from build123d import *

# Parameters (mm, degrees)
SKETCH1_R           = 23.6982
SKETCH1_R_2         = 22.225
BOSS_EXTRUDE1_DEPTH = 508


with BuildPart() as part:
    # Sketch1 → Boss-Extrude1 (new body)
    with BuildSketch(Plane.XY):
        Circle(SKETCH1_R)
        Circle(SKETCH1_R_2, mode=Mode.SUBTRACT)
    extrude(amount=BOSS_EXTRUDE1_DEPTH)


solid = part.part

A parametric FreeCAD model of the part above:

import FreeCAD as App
import Part
import Sketcher
Q = App.Units.Quantity

doc = App.newDocument("Part")
body = doc.addObject("PartDesign::Body", "Body")

sketch1 = doc.addObject("Sketcher::SketchObject", "Sketch")
body.addObject(sketch1)
sketch1.AttachmentSupport = (doc.XY_Plane, [""])
sketch1.MapMode = "FlatFace"
sketch1.addGeometry(Part.Circle(App.Vector(0, 0, 0), App.Vector(0, 0, 1), 24), False)
sketch1.addGeometry(Part.Circle(App.Vector(0, 0, 0), App.Vector(0, 0, 1), 22), False)
sketch1.addConstraint(Sketcher.Constraint("Coincident", 0, 3, -1, 1))
sketch1.addConstraint(Sketcher.Constraint("Coincident", 1, 3, -1, 1))
sketch1.addConstraint(Sketcher.Constraint("Diameter", 1, Q("1.75 in")))
sketch1.addConstraint(Sketcher.Constraint("Diameter", 0, Q("1.866 in")))
pad1 = doc.addObject("PartDesign::Pad", "Pad")
body.addObject(pad1)
pad1.Profile = sketch1
pad1.Length = Q("20 in")

doc.recompute()
